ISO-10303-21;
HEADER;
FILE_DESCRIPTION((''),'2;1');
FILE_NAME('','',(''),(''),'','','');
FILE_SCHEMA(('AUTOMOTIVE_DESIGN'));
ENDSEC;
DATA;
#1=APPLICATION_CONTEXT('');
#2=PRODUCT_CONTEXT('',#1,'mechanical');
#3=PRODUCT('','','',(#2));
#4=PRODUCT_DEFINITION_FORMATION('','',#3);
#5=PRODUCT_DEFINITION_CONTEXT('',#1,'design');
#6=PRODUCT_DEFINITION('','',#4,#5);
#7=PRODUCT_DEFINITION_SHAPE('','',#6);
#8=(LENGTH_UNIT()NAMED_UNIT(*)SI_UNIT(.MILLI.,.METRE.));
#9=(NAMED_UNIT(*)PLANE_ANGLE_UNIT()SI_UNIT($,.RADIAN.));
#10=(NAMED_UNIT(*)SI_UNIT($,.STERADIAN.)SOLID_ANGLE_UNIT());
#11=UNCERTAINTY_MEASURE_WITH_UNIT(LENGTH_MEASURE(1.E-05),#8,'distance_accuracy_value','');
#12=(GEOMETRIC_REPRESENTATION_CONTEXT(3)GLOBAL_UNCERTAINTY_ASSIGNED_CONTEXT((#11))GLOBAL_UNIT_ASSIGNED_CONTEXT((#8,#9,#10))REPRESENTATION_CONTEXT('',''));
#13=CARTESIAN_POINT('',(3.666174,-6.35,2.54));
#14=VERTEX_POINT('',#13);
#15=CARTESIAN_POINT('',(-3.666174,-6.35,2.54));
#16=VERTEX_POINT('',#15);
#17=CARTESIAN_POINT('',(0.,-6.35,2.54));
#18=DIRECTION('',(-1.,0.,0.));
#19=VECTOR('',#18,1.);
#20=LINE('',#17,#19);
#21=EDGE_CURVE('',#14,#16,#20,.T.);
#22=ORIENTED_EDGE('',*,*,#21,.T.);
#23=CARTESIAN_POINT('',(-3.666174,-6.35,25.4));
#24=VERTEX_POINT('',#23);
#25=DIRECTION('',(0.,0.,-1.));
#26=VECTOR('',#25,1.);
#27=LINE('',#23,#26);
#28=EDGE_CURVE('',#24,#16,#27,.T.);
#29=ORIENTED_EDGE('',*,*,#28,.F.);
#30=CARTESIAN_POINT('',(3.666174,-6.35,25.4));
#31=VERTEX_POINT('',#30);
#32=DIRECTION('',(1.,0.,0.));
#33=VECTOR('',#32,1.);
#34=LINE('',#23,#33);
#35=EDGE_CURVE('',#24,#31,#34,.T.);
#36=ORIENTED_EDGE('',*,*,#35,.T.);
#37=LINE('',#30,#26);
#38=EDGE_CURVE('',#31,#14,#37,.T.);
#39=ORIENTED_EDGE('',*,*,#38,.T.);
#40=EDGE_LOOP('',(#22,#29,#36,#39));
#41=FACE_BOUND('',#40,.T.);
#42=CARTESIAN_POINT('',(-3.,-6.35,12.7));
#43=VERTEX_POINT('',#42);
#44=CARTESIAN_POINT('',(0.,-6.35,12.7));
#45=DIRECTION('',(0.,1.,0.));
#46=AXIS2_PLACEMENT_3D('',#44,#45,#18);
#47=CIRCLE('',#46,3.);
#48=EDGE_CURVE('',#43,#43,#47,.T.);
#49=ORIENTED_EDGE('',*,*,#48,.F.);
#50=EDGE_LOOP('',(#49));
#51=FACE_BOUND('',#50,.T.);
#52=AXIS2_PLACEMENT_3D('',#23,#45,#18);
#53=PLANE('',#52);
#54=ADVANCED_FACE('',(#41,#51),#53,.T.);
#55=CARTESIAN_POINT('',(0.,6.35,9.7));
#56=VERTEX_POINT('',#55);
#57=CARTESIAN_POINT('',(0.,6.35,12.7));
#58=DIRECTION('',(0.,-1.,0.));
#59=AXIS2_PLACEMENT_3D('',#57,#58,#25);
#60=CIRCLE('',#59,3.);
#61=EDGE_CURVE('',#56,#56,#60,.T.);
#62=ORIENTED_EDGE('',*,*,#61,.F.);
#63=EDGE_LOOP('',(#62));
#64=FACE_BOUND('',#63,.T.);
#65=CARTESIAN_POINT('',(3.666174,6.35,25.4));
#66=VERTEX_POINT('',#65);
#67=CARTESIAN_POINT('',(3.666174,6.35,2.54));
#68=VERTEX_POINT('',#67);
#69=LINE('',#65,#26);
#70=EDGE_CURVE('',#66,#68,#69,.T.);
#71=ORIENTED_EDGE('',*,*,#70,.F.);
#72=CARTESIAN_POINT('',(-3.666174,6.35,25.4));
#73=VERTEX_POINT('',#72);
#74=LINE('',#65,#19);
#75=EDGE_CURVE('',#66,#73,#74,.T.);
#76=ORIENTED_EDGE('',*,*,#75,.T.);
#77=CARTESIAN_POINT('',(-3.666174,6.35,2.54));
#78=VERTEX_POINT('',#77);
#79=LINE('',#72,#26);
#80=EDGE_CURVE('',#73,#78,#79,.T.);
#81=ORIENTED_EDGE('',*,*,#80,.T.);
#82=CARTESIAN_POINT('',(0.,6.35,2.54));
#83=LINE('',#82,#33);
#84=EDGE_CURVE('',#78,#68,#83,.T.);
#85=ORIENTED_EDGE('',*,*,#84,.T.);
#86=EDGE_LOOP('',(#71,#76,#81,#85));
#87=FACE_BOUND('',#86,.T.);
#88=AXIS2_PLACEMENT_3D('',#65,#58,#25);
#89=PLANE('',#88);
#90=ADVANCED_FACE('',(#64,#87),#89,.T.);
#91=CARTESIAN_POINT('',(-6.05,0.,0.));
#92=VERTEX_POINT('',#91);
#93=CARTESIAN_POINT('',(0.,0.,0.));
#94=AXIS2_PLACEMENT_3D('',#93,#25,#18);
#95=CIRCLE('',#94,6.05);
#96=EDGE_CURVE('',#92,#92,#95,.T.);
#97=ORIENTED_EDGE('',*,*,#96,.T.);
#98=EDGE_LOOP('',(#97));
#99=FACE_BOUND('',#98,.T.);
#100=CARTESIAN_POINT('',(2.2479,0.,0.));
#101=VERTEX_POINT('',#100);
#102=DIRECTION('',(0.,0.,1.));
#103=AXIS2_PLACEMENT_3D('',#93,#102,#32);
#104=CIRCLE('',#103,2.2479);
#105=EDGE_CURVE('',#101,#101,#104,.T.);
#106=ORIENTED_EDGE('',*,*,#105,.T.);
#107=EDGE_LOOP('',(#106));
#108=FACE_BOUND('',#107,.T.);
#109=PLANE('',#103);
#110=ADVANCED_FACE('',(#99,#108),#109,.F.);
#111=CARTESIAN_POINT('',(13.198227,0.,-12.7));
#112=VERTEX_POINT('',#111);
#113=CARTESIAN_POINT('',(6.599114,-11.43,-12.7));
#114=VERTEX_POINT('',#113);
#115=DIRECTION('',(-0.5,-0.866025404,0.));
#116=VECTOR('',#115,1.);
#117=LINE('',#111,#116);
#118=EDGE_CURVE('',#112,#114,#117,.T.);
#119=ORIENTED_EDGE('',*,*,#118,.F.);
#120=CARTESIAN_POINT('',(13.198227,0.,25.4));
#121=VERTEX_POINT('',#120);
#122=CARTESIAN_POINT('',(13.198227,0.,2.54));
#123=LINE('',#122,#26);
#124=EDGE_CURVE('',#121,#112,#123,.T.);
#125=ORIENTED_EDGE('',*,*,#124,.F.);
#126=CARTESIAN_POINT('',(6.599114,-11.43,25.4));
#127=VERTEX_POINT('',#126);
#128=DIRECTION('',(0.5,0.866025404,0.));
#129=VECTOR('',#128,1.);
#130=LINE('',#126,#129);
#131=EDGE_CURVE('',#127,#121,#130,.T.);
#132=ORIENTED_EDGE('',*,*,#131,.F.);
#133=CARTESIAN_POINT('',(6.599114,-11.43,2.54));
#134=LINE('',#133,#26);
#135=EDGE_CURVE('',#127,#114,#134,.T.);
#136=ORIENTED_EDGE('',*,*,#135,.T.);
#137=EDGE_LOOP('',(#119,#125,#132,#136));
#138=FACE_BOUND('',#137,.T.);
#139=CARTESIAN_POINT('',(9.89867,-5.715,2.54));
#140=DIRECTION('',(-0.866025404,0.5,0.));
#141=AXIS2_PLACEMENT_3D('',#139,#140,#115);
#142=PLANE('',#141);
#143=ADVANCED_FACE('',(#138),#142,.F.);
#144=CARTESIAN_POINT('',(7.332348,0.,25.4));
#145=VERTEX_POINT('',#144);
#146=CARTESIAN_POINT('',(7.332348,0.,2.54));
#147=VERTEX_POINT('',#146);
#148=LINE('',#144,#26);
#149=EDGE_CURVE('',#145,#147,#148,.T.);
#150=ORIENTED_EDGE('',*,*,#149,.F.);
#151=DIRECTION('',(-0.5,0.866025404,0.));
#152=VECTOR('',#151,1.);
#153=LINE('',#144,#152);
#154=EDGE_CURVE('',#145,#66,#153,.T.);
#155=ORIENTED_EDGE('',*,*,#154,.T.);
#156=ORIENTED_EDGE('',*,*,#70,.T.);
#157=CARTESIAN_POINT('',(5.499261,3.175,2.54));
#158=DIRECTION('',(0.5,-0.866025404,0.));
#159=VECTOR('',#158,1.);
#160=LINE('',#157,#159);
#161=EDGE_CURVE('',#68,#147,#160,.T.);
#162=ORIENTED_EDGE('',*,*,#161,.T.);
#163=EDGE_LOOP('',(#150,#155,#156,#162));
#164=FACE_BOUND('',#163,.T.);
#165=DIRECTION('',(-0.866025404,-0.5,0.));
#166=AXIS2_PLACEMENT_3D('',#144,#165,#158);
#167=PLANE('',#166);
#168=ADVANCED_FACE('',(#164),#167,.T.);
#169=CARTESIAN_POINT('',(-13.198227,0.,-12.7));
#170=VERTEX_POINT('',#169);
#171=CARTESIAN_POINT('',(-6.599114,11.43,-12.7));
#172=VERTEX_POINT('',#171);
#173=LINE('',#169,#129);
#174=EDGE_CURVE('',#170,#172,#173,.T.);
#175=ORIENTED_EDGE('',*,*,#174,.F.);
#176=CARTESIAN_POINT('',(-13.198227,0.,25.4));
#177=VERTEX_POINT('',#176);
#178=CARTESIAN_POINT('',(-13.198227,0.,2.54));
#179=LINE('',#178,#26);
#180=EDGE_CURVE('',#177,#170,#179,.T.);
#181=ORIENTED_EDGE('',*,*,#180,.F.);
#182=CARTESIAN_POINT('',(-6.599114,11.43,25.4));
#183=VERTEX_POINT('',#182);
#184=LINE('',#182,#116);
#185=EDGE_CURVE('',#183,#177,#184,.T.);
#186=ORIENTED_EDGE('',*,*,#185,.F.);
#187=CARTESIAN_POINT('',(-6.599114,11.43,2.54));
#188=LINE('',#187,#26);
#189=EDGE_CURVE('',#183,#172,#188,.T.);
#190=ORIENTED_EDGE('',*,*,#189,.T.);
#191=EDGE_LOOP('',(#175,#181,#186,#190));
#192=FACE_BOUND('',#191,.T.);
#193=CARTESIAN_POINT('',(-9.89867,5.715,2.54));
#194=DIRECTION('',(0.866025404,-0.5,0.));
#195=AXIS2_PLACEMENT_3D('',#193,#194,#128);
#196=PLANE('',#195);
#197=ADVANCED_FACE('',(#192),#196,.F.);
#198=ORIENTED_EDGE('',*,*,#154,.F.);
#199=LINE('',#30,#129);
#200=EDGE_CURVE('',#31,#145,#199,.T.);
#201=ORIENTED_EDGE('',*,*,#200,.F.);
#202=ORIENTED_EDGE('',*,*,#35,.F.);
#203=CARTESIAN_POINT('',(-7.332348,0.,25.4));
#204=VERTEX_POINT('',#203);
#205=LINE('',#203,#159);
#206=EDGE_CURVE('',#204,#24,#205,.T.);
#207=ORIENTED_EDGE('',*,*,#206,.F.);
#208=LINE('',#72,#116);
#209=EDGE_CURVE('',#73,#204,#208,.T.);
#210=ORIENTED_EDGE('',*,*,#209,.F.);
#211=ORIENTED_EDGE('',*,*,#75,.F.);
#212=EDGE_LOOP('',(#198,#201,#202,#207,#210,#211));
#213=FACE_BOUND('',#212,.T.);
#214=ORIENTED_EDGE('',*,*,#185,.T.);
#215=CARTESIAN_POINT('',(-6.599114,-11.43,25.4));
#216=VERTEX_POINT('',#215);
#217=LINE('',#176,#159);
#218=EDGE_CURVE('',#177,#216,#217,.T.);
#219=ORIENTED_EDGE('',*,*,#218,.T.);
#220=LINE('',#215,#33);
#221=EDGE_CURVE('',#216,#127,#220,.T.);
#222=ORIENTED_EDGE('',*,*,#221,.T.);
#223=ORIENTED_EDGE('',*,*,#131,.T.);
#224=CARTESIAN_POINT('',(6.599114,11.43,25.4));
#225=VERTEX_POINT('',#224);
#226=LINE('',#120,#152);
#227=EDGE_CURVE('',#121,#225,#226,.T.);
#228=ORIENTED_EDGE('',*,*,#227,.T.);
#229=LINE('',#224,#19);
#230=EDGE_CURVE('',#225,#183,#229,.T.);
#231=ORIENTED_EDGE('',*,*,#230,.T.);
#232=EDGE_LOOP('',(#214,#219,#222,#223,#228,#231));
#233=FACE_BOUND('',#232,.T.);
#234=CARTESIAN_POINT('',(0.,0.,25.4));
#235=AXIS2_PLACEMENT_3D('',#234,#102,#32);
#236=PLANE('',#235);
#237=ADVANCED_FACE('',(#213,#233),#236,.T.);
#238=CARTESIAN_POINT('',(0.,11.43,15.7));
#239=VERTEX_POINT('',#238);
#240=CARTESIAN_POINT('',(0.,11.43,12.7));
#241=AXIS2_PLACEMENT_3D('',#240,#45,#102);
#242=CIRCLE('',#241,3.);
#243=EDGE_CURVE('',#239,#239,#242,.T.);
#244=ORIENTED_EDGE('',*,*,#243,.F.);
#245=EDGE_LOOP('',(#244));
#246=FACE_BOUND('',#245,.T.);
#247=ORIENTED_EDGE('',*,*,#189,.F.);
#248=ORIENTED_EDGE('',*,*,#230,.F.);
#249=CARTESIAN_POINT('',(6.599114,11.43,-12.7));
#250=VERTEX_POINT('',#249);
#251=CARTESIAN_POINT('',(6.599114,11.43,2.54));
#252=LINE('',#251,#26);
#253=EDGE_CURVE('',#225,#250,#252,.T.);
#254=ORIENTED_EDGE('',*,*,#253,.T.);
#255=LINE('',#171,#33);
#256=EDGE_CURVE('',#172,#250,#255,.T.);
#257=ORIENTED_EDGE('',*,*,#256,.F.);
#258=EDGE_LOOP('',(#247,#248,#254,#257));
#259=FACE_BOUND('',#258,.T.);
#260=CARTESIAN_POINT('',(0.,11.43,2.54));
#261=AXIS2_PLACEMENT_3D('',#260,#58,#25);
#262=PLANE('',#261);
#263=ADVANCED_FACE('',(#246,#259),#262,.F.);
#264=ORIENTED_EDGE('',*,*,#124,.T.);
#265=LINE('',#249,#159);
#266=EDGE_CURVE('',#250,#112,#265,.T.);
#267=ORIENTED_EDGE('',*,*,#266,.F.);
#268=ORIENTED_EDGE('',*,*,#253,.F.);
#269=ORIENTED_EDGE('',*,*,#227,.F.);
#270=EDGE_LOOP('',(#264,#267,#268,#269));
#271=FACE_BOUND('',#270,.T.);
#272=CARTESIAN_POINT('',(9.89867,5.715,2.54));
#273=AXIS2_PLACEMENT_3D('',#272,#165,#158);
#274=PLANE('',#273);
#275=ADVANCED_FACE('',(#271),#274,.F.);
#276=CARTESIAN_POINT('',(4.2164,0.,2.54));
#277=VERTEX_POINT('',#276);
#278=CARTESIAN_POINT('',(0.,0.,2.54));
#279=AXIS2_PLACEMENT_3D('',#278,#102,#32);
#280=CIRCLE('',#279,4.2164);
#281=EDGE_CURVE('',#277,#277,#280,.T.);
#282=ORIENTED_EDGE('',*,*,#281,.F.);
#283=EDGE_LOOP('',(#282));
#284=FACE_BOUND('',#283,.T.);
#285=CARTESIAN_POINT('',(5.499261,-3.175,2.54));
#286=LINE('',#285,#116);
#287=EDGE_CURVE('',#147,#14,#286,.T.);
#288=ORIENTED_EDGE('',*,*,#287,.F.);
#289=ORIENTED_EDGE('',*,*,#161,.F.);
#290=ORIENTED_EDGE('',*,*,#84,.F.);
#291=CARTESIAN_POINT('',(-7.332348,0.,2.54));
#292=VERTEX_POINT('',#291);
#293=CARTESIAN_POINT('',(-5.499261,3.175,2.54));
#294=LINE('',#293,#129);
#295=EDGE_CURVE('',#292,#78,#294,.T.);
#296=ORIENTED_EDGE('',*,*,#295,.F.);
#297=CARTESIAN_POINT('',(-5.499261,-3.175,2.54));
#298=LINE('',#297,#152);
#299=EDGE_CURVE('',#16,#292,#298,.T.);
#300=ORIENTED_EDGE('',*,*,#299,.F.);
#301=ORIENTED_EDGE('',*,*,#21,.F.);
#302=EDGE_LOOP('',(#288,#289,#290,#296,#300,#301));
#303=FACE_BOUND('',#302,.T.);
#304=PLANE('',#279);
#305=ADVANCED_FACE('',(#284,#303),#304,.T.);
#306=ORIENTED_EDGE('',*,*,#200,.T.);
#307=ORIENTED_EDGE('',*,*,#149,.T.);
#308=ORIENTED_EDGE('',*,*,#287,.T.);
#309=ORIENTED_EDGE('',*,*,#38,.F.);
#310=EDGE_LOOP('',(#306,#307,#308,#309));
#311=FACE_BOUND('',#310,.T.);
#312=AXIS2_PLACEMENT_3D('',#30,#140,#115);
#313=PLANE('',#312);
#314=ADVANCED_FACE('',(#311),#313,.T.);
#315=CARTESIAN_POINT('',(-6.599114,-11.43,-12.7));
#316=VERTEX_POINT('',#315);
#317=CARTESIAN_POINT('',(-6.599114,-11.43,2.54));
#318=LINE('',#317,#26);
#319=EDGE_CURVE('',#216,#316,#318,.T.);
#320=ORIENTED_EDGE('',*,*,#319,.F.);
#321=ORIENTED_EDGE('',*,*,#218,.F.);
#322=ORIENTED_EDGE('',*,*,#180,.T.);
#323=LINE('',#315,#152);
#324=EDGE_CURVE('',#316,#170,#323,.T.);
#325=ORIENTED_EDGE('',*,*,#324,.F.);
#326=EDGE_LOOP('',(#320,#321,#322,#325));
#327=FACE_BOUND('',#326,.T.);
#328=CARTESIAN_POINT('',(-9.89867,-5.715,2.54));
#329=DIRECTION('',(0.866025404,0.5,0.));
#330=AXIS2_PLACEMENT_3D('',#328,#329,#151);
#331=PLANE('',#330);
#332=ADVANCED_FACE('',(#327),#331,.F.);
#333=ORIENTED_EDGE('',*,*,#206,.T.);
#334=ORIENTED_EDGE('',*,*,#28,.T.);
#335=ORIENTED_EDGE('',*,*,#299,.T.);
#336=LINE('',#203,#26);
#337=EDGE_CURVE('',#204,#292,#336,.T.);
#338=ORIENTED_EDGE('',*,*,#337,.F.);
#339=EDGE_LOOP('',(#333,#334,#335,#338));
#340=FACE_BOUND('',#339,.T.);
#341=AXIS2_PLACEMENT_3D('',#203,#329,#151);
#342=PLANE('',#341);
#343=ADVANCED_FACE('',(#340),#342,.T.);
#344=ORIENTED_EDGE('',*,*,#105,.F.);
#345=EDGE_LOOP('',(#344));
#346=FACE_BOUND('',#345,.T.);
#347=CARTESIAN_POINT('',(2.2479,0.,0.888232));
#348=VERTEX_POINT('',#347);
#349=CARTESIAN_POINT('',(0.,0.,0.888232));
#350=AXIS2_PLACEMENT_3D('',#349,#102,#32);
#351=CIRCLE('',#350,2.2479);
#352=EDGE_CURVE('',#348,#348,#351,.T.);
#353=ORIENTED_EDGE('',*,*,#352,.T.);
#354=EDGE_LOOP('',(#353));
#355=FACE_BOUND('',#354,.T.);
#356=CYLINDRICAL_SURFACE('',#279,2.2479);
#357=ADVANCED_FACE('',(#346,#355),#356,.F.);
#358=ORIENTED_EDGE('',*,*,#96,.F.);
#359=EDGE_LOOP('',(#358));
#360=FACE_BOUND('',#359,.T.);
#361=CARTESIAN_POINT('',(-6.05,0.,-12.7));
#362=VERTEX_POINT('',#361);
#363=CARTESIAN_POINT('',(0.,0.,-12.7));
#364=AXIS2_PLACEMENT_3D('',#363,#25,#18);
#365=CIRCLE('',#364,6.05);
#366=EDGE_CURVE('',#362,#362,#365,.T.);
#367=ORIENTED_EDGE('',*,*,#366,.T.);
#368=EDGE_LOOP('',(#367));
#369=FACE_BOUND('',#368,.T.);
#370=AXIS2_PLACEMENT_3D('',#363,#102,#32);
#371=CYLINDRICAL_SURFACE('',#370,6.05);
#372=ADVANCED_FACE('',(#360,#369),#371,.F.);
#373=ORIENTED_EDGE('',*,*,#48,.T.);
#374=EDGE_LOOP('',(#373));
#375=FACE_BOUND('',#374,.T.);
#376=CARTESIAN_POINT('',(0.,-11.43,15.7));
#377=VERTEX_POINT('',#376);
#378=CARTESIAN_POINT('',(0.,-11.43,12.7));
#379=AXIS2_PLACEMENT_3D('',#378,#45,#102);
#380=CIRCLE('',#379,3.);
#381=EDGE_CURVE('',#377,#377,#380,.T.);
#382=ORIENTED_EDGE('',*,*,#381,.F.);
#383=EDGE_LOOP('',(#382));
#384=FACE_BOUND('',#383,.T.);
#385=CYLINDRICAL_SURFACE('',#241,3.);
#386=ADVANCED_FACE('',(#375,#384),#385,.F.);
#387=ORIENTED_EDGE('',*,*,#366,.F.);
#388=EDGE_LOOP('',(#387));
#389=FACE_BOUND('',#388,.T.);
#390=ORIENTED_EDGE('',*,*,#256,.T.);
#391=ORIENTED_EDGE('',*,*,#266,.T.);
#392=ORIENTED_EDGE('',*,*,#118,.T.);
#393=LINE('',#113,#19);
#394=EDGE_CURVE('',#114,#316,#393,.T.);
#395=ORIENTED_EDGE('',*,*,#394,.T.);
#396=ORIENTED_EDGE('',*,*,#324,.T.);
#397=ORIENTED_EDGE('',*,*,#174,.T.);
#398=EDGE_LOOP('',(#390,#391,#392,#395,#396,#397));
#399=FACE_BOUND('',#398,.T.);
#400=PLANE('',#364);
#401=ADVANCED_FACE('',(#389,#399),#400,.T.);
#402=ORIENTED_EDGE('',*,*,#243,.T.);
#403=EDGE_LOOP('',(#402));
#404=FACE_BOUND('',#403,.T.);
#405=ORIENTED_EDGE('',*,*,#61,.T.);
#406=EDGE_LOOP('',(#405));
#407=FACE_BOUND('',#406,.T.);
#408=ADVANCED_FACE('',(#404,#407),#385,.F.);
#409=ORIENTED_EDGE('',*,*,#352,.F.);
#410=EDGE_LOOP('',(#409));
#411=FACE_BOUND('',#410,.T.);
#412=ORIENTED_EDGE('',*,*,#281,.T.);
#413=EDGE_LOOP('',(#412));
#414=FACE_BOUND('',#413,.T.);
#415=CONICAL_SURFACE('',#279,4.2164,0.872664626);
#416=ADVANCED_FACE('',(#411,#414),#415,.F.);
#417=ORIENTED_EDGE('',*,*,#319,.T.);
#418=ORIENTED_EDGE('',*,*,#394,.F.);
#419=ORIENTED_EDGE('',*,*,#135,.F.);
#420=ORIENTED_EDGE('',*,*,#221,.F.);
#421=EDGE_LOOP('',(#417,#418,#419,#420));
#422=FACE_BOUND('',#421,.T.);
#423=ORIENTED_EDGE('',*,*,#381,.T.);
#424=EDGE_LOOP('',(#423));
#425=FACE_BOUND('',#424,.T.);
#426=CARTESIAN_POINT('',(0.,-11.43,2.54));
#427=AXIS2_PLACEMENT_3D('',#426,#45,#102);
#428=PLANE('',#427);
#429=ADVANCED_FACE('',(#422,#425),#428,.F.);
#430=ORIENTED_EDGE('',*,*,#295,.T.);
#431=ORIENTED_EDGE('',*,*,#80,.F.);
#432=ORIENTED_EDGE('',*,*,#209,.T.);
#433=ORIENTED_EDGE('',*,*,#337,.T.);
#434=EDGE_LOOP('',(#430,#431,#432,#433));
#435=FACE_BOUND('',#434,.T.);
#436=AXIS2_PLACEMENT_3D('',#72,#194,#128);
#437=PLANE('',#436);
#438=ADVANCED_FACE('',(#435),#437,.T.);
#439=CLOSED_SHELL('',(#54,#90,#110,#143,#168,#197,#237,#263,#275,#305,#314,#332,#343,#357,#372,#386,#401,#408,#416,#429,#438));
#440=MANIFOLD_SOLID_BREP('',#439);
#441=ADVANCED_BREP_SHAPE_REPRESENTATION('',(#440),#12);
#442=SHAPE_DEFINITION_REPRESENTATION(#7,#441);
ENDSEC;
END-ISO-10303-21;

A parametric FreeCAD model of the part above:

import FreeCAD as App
import Part
import Sketcher

V = App.Vector
Q = App.Units.Quantity


def add_polygon(sketch, points):
    """Adds a closed chain of lines whose ends are joined by coincident constraints."""
    first, n = sketch.GeometryCount, len(points)
    for a, b in zip(points, points[1:] + points[:1]):
        sketch.addGeometry(Part.LineSegment(App.Vector(*a, 0), App.Vector(*b, 0)), False)
    for i in range(n):
        sketch.addConstraint(Sketcher.Constraint("Coincident", first + i, 2, first + (i + 1) % n, 1))

doc = App.newDocument("Part")
params = doc.addObject("Spreadsheet::Sheet", "Params")
for row, (alias, value) in enumerate([
    ("pad1_length", "0.1 in"),
    ("sketch2_height", "0.1 in"),
    ("sketch2_width", "0.166 in"),
    ("groove_angle", "360 deg"),
    ("linearpattern_pitch", "18.548357 mm"),
    ("pad2_length", "1 in"),
    ("hole_diameter", "6 mm"),
    ("pad3_length", "0.5 in"),
], start=1):
    params.set(f"A{row}", alias)
    params.set(f"B{row}", "=" + value)
    params.setAlias(f"B{row}", alias)

body = doc.addObject("PartDesign::Body", "Body")

sketch1 = body.newObject("Sketcher::SketchObject", "Sketch")
sketch1.AttachmentSupport = (doc.getObject("XY_Plane"), [""])
sketch1.MapMode = "FlatFace"
add_polygon(sketch1, [(7, -11), (13, 0), (7, 11), (-7, 11), (-13, 0), (-7, -11)])
sketch1.addConstraint([
    Sketcher.Constraint("Horizontal", 2),
    Sketcher.Constraint("Horizontal", 5),
    Sketcher.Constraint("Symmetric", 0, 2, 3, 2, -1, 1),
    Sketcher.Constraint("Symmetric", 1, 2, 4, 2, -1, 1),
    Sketcher.Constraint("PointOnObject", 0, 2, -1),
    Sketcher.Constraint("Parallel", 0, 3),
    Sketcher.Constraint("Vertical", 2, 2, 4, 2),
    Sketcher.Constraint("Angle", 0, Q("60 deg")),
    Sketcher.Constraint("DistanceY", 4, 2, 2, 2, Q("0.9 in")),
    Sketcher.Constraint("DistanceX", 2, 2, 2, 1, 13.198227),
])
pad1 = body.newObject("PartDesign::Pad", "Pad")
pad1.Profile = sketch1
pad1.setExpression("Length", "Params.pad1_length")

sketch2 = body.newObject("Sketcher::SketchObject", "Sketch001")
sketch2.AttachmentSupport = (doc.getObject("YZ_Plane"), [""])
sketch2.MapMode = "FlatFace"
add_polygon(sketch2, [(0, 0), (0, 2.5), (-4.2, 2.5), (-2.2, 0.9), (-2.2, 0)])
sketch2.addConstraint([
    Sketcher.Constraint("Vertical", 0),
    Sketcher.Constraint("Horizontal", 1),
    Sketcher.Constraint("Vertical", 3),
    Sketcher.Constraint("Horizontal", 4),
    Sketcher.Constraint("Coincident", 4, 2, -1, 1),
    Sketcher.Constraint("DistanceY", 0, 1, 0, 2, Q("0.1 in")),
    Sketcher.Constraint("Angle", 2, Q("-40 deg")),
    Sketcher.Constraint("DistanceX", 1, 2, 1, 1, Q("0.166 in")),
    Sketcher.Constraint("DistanceX", 4, 1, 4, 2, Q("0.0885 in")),
])
sketch2.setExpression("Constraints[10]", "Params.sketch2_height")
sketch2.setExpression("Constraints[12]", "Params.sketch2_width")
groove = body.newObject("PartDesign::Groove", "Groove")
groove.Profile = sketch2
groove.ReferenceAxis = (sketch2, ["V_Axis"])
groove.setExpression("Angle", "Params.groove_angle")
doc.recompute()

datumline = body.newObject("PartDesign::Line", "DatumLine")
datumline.Placement = App.Placement(V(0, 0, 0), App.Rotation(V(0, 0, 1), V(-0.927406881, 0.374054109, 0)))
linearpattern = body.newObject("PartDesign::LinearPattern", "LinearPattern")
linearpattern.Originals = [groove]
linearpattern.Direction = (datumline, [""])
linearpattern.Mode = "offset"
linearpattern.setExpression("Offset", "Params.linearpattern_pitch")
linearpattern.Occurrences = 2
body.Tip = linearpattern

sketch3 = body.newObject("Sketcher::SketchObject", "Sketch002")
sketch3.AttachmentSupport = (doc.getObject("XY_Plane"), [""])
sketch3.MapMode = "FlatFace"
add_polygon(sketch3, [(7, 11), (-7, 11), (-13, 0), (-7, -11), (7, -11), (13, 0)])
add_polygon(sketch3, [(7, 0), (4, -6), (-4, -6), (-7, 0), (-4, 6), (4, 6)])
sketch3.addConstraint([
    Sketcher.Constraint("Horizontal", 0),
    Sketcher.Constraint("Horizontal", 3),
    Sketcher.Constraint("Horizontal", 7),
    Sketcher.Constraint("Horizontal", 10),
    Sketcher.Constraint("Symmetric", 0, 2, 3, 2, -1, 1),
    Sketcher.Constraint("Symmetric", 1, 2, 4, 2, -1, 1),
    Sketcher.Constraint("Symmetric", 6, 2, 9, 2, -1, 1),
    Sketcher.Constraint("Symmetric", 8, 2, 11, 2, -1, 1),
    Sketcher.Constraint("PointOnObject", 1, 2, -1),
    Sketcher.Constraint("PointOnObject", 8, 2, -1),
    Sketcher.Constraint("Parallel", 2, 5),
    Sketcher.Constraint("Parallel", 4, 6),
    Sketcher.Constraint("Parallel", 5, 8),
    Sketcher.Constraint("Parallel", 8, 11),
    Sketcher.Constraint("Vertical", 0, 2, 2, 2),
    Sketcher.Constraint("Angle", 1, Q("-120 deg")),
    Sketcher.Constraint("DistanceY", 2, 2, 0, 2, Q("0.9 in")),
    Sketcher.Constraint("DistanceY", 3, 2, 6, 2, Q("0.2 in")),
    Sketcher.Constraint("DistanceX", 7, 2, 7, 1, 7.332348),
    Sketcher.Constraint("DistanceX", 1, 2, 6, 2, 16.864401),
])
pad2 = body.newObject("PartDesign::Pad", "Pad001")
pad2.Profile = sketch3
pad2.setExpression("Length", "Params.pad2_length")

sketch4 = body.newObject("Sketcher::SketchObject", "Sketch003")
sketch4.AttachmentSupport = (doc.getObject("XZ_Plane"), [""])
sketch4.MapMode = "FlatFace"
sketch4.AttachmentOffset = App.Placement(V(0, 0, -0.45 * 25.4), App.Rotation())
sketch4.addGeometry(Part.Circle(V(0, 12.7, 0), V(0, 0, 1), 3), False)
sketch4.addConstraint([
    Sketcher.Constraint("PointOnObject", 0, 3, -2),
    Sketcher.Constraint("DistanceY", -1, 1, 0, 3, Q("0.5 in")),
    Sketcher.Constraint("Diameter", 0, 6.0),
])
doc.recompute()
hole = body.newObject("PartDesign::Hole", "Hole")
hole.Profile = sketch4
hole.ThreadType = "None"
hole.setExpression("Diameter", "Params.hole_diameter")
hole.DepthType = "ThroughAll"
hole.Reversed = True

sketch5 = body.newObject("Sketcher::SketchObject", "Sketch004")
sketch5.AttachmentSupport = (doc.getObject("XY_Plane"), [""])
sketch5.MapMode = "FlatFace"
add_polygon(sketch5, [(13, 0), (7, -11), (-7, -11), (-13, 0), (-7, 11), (7, 11)])
sketch5.addGeometry(Part.Circle(V(0, 0, 0), V(0, 0, 1), 6), False)
sketch5.addConstraint([
    Sketcher.Constraint("Horizontal", 1),
    Sketcher.Constraint("Horizontal", 4),
    Sketcher.Constraint("Coincident", 6, 3, -1, 1),
    Sketcher.Constraint("Symmetric", 0, 2, 3, 2, -1, 1),
    Sketcher.Constraint("Symmetric", 2, 2, 5, 2, -1, 1),
    Sketcher.Constraint("PointOnObject", 2, 2, -1),
    Sketcher.Constraint("Parallel", 2, 5),
    Sketcher.Constraint("Vertical", 1, 2, 3, 2),
    Sketcher.Constraint("Angle", 0, Q("-120 deg")),
    Sketcher.Constraint("DistanceY", 1, 2, 3, 2, Q("0.9 in")),
    Sketcher.Constraint("Diameter", 6, 12.1),
    Sketcher.Constraint("DistanceX", 1, 2, 1, 1, 13.198227),
])
pad3 = body.newObject("PartDesign::Pad", "Pad002")
pad3.Profile = sketch5
pad3.setExpression("Length", "Params.pad3_length")
pad3.Reversed = True

doc.recompute()
